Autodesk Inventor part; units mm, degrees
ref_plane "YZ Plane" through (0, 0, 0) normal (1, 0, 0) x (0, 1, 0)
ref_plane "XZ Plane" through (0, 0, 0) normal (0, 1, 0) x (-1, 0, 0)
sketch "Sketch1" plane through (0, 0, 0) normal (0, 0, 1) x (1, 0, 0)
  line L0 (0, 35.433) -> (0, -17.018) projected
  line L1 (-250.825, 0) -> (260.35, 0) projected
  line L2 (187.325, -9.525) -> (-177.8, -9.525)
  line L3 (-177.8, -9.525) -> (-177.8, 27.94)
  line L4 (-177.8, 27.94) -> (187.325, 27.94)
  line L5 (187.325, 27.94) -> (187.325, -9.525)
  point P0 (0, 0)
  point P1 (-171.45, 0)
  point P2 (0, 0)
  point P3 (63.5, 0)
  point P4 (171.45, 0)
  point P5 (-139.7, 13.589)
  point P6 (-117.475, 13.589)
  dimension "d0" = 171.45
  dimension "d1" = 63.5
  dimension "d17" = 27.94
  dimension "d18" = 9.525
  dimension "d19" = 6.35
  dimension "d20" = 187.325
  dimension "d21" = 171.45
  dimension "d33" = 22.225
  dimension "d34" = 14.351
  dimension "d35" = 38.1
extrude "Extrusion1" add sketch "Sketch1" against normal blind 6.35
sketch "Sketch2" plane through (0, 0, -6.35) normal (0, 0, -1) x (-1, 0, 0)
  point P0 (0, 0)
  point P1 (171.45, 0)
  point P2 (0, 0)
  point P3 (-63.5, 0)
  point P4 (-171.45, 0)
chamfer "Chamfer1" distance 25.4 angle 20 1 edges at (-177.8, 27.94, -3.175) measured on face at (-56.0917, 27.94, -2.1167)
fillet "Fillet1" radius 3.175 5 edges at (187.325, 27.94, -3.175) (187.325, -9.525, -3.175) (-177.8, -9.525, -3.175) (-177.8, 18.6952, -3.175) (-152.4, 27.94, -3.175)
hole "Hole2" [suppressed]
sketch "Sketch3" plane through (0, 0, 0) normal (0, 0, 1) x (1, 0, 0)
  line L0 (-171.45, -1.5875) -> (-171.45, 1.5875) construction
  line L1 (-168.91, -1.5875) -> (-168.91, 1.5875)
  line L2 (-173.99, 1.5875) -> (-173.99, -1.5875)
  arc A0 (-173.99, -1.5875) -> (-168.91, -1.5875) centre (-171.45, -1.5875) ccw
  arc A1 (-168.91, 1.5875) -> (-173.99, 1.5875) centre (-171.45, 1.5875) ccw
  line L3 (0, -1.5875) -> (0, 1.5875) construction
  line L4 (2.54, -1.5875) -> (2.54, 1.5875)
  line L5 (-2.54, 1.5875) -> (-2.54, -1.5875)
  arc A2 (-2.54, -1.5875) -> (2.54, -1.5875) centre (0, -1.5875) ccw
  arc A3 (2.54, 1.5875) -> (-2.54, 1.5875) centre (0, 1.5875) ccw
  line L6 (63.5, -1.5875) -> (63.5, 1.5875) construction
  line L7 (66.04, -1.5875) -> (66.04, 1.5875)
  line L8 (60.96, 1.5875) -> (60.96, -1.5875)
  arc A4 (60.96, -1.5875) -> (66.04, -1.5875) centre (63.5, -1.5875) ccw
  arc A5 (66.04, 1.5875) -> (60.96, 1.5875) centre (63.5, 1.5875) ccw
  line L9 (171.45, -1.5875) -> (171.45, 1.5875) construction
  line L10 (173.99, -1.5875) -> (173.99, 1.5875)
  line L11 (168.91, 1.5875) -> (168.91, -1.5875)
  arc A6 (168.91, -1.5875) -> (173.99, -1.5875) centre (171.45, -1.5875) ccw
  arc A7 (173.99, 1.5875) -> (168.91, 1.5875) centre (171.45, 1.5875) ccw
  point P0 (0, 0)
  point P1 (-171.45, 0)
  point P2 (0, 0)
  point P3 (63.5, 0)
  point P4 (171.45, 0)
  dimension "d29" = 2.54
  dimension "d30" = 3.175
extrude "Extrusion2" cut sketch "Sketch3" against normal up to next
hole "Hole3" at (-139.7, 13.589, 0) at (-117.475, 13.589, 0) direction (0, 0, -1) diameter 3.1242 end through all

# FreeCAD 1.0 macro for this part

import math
import FreeCAD as App
import Part
import Sketcher
Q = App.Units.Quantity


def edges_at(feature, points):
    """Names of the edges that pass closest to the given points."""
    edges = feature.Shape.Edges
    near = lambda p: min(range(len(edges)), key=lambda i: edges[i].distToShape(Part.Vertex(*p))[0])
    return sorted({f"Edge{near(p) + 1}" for p in points})

doc = App.newDocument("Part")
body = doc.addObject("PartDesign::Body", "Body")

# Sketch on XY plane
sketch1 = body.newObject("Sketcher::SketchObject", "Sketch")
sketch1.AttachmentSupport = (doc.getObject("XY_Plane"), [""])
sketch1.MapMode = "FlatFace"
sketch1.addGeometry([
    Part.LineSegment(App.Vector(187.325, 27.94, 0), App.Vector(-177.8, 27.94, 0)),
    Part.LineSegment(App.Vector(-177.8, 27.94, 0), App.Vector(-177.8, -9.525, 0)),
    Part.LineSegment(App.Vector(-177.8, -9.525, 0), App.Vector(187.325, -9.525, 0)),
    Part.LineSegment(App.Vector(187.325, -9.525, 0), App.Vector(187.325, 27.94, 0)),
], False)
sketch1.addConstraint([
    Sketcher.Constraint("Coincident", 0, 2, 1, 1),
    Sketcher.Constraint("Coincident", 1, 2, 2, 1),
    Sketcher.Constraint("Coincident", 2, 2, 3, 1),
    Sketcher.Constraint("Coincident", 3, 2, 0, 1),
    Sketcher.Constraint("Horizontal", 0),
    Sketcher.Constraint("Vertical", 1),
    Sketcher.Constraint("Horizontal", 2),
    Sketcher.Constraint("Vertical", 3),
    Sketcher.Constraint("DistanceY", -1, 1, 0, 2, Q("1.1 in")),
    Sketcher.Constraint("DistanceY", 1, 2, -1, 1, Q("0.375 in")),
    Sketcher.Constraint("DistanceX", -1, 1, 2, 2, Q("7.375 in")),
    Sketcher.Constraint("DistanceX", 0, 2, -1, 1, Q("7 in")),
])
pad1 = body.newObject("PartDesign::Pad", "Pad")
pad1.Profile = sketch1
pad1.Length = Q("0.25 in")
pad1.Reversed = True
doc.recompute()

chamfer = body.newObject("PartDesign::Chamfer", "Chamfer")
chamfer.Base = (pad1, edges_at(pad1, [(-177.8, 27.94, -3.175)]))
chamfer.ChamferType = "Distance and Angle"
chamfer.Size = Q("1 in")
chamfer.Angle = 20
doc.recompute()

fillet = body.newObject("PartDesign::Fillet", "Fillet")
fillet.Base = (chamfer, edges_at(chamfer, [
    (187.325, 27.94, -3.175),
    (187.325, -9.525, -3.175),
    (-177.8, -9.525, -3.175),
    (-177.8, 18.695, -3.175),
    (-152.4, 27.94, -3.175),
]))
fillet.Radius = Q("0.125 in")

# Sketch on XY plane
sketch2 = body.newObject("Sketcher::SketchObject", "Sketch001")
sketch2.AttachmentSupport = (doc.getObject("XY_Plane"), [""])
sketch2.MapMode = "FlatFace"
sketch2.addGeometry([
    Part.ArcOfCircle(Part.Circle(App.Vector(-171.45, -1.5875, 0), App.Vector(0, 0, 1), 2.54), math.radians(180), math.radians(360)),  # 0
    Part.LineSegment(App.Vector(-168.91, -1.5875, 0), App.Vector(-168.91, 1.5875, 0)),  # 1
    Part.ArcOfCircle(Part.Circle(App.Vector(-171.45, 1.5875, 0), App.Vector(0, 0, 1), 2.54), math.radians(0), math.radians(180)),  # 2
    Part.LineSegment(App.Vector(-173.99, 1.5875, 0), App.Vector(-173.99, -1.5875, 0)),  # 3
    Part.ArcOfCircle(Part.Circle(App.Vector(0, -1.5875, 0), App.Vector(0, 0, 1), 2.54), math.radians(180), math.radians(360)),  # 4
    Part.LineSegment(App.Vector(2.54, -1.5875, 0), App.Vector(2.54, 1.5875, 0)),  # 5
    Part.ArcOfCircle(Part.Circle(App.Vector(0, 1.5875, 0), App.Vector(0, 0, 1), 2.54), math.radians(0), math.radians(180)),  # 6
    Part.LineSegment(App.Vector(-2.54, 1.5875, 0), App.Vector(-2.54, -1.5875, 0)),  # 7
    Part.ArcOfCircle(Part.Circle(App.Vector(63.5, -1.5875, 0), App.Vector(0, 0, 1), 2.54), math.radians(180), math.radians(360)),  # 8
    Part.LineSegment(App.Vector(66.04, -1.5875, 0), App.Vector(66.04, 1.5875, 0)),  # 9
    Part.ArcOfCircle(Part.Circle(App.Vector(63.5, 1.5875, 0), App.Vector(0, 0, 1), 2.54), math.radians(0), math.radians(180)),  # 10
    Part.LineSegment(App.Vector(60.96, 1.5875, 0), App.Vector(60.96, -1.5875, 0)),  # 11
    Part.ArcOfCircle(Part.Circle(App.Vector(171.45, -1.5875, 0), App.Vector(0, 0, 1), 2.54), math.radians(180), math.radians(360)),  # 12
    Part.LineSegment(App.Vector(173.99, -1.5875, 0), App.Vector(173.99, 1.5875, 0)),  # 13
    Part.ArcOfCircle(Part.Circle(App.Vector(171.45, 1.5875, 0), App.Vector(0, 0, 1), 2.54), math.radians(0), math.radians(180)),  # 14
    Part.LineSegment(App.Vector(168.91, 1.5875, 0), App.Vector(168.91, -1.5875, 0)),  # 15
], False)
sketch2.addConstraint([
    Sketcher.Constraint("Tangent", 0, 2, 1, 1),
    Sketcher.Constraint("Tangent", 1, 2, 2, 1),
    Sketcher.Constraint("Tangent", 2, 2, 3, 1),
    Sketcher.Constraint("Tangent", 3, 2, 0, 1),
    Sketcher.Constraint("Tangent", 4, 2, 5, 1),
    Sketcher.Constraint("Tangent", 5, 2, 6, 1),
    Sketcher.Constraint("Tangent", 6, 2, 7, 1),
    Sketcher.Constraint("Tangent", 7, 2, 4, 1),
    Sketcher.Constraint("Tangent", 8, 2, 9, 1),
    Sketcher.Constraint("Tangent", 9, 2, 10, 1),
    Sketcher.Constraint("Tangent", 10, 2, 11, 1),
    Sketcher.Constraint("Tangent", 11, 2, 8, 1),
    Sketcher.Constraint("Tangent", 12, 2, 13, 1),
    Sketcher.Constraint("Tangent", 13, 2, 14, 1),
    Sketcher.Constraint("Tangent", 14, 2, 15, 1),
    Sketcher.Constraint("Tangent", 15, 2, 12, 1),
    Sketcher.Constraint("Vertical", 1),
    Sketcher.Constraint("Vertical", 3),
    Sketcher.Constraint("Vertical", 5),
    Sketcher.Constraint("Vertical", 7),
    Sketcher.Constraint("Vertical", 9),
    Sketcher.Constraint("Vertical", 11),
    Sketcher.Constraint("Vertical", 13),
    Sketcher.Constraint("Vertical", 15),
    Sketcher.Constraint("Equal", 2, 4),
    Sketcher.Constraint("Equal", 6, 8),
    Sketcher.Constraint("Equal", 10, 12),
    Sketcher.Constraint("Symmetric", 4, 3, 6, 3, -1, 1),
    Sketcher.Constraint("Symmetric", 2, 3, 12, 3, -1, 1),
    Sketcher.Constraint("Horizontal", 0, 3, 4, 3),
    Sketcher.Constraint("Horizontal", 2, 3, 6, 3),
    Sketcher.Constraint("Horizontal", 4, 3, 8, 3),
    Sketcher.Constraint("Horizontal", 6, 3, 10, 3),
    Sketcher.Constraint("Horizontal", 10, 3, 14, 3),
    Sketcher.Constraint("Radius", 0, Q("0.1 in")),
    Sketcher.Constraint("DistanceY", 1, 1, 1, 2, Q("0.125 in")),
    Sketcher.Constraint("DistanceX", -1, 1, 8, 3, Q("2.5 in")),
    Sketcher.Constraint("DistanceX", 0, 3, 12, 3, Q("13.5 in")),
])
pocket1 = body.newObject("PartDesign::Pocket", "Pocket")
pocket1.Profile = sketch2
pocket1.Length = Q("0.25 in")

# Sketch on XY plane
sketch3 = body.newObject("Sketcher::SketchObject", "Sketch002")
sketch3.AttachmentSupport = (doc.getObject("XY_Plane"), [""])
sketch3.MapMode = "FlatFace"
sketch3.addGeometry([
    Part.Circle(App.Vector(-139.7, 13.589, 0), App.Vector(0, 0, 1), 1.5621),
    Part.Circle(App.Vector(-117.475, 13.589, 0), App.Vector(0, 0, 1), 1.5621),
], False)
sketch3.addConstraint([
    Sketcher.Constraint("Equal", 0, 1),
    Sketcher.Constraint("Horizontal", 0, 3, 1, 3),
    Sketcher.Constraint("Diameter", 0, Q("0.123 in")),
    Sketcher.Constraint("DistanceX", 0, 3, -1, 1, Q("5.5 in")),
    Sketcher.Constraint("DistanceY", -1, 1, 0, 3, Q("0.535 in")),
    Sketcher.Constraint("DistanceX", 1, 3, -1, 1, Q("4.625 in")),
])
doc.recompute()
hole = body.newObject("PartDesign::Hole", "Hole")
hole.Profile = sketch3
hole.ThreadType = "None"
hole.Diameter = Q("0.123 in")
hole.DepthType = "ThroughAll"

doc.recompute()
